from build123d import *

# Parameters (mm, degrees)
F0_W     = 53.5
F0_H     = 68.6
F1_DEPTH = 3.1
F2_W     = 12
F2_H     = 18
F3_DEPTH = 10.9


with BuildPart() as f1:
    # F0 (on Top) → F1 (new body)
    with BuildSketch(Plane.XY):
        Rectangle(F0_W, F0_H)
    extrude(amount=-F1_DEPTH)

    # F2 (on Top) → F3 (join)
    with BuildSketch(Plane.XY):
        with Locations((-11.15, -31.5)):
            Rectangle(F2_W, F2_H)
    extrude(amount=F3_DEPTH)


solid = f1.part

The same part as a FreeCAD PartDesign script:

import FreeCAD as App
import Part
import Sketcher
Q = App.Units.Quantity


def add_polygon(sketch, points):
    """Adds a closed chain of lines whose ends are joined by coincident constraints."""
    first, n = sketch.GeometryCount, len(points)
    for a, b in zip(points, points[1:] + points[:1]):
        sketch.addGeometry(Part.LineSegment(App.Vector(*a, 0), App.Vector(*b, 0)), False)
    for i in range(n):
        sketch.addConstraint(Sketcher.Constraint("Coincident", first + i, 2, first + (i + 1) % n, 1))

doc = App.newDocument("Part")
params = doc.addObject("Spreadsheet::Sheet", "Params")
for row, (alias, value) in enumerate([
    ("sketch1_width", "53.5 mm"),
    ("sketch1_height", "68.6 mm"),
    ("pad1_length", "3.1 mm"),
    ("sketch2_width", "12 mm"),
    ("sketch2_height", "18 mm"),
    ("pad2_length", "10.9 mm"),
], start=1):
    params.set(f"A{row}", alias)
    params.set(f"B{row}", "=" + value)
    params.setAlias(f"B{row}", alias)

body = doc.addObject("PartDesign::Body", "Body")

# Sketch on XY plane
sketch1 = body.newObject("Sketcher::SketchObject", "Sketch")
sketch1.AttachmentSupport = (doc.getObject("XY_Plane"), [""])
sketch1.MapMode = "FlatFace"
add_polygon(sketch1, [(-27, 34), (-27, -34), (27, -34), (27, 34)])  # lines 0-3
sketch1.addConstraint(Sketcher.Constraint("Vertical", 0))
sketch1.addConstraint(Sketcher.Constraint("Horizontal", 1))
sketch1.addConstraint(Sketcher.Constraint("Vertical", 2))
sketch1.addConstraint(Sketcher.Constraint("Horizontal", 3))
sketch1.addConstraint(Sketcher.Constraint("Symmetric", 0, 2, 2, 2, -1, 1))
sketch1.addConstraint(Sketcher.Constraint("DistanceX", 1, 1, 1, 2, Q("53.5 mm")))
sketch1.addConstraint(Sketcher.Constraint("DistanceY", 0, 2, 0, 1, Q("68.6 mm")))
sketch1.setExpression("Constraints[9]", "Params.sketch1_width")
sketch1.setExpression("Constraints[10]", "Params.sketch1_height")
pad1 = body.newObject("PartDesign::Pad", "Pad")
pad1.Profile = sketch1
pad1.setExpression("Length", "Params.pad1_length")
pad1.Reversed = True

# Sketch on XY plane
sketch2 = body.newObject("Sketcher::SketchObject", "Sketch001")
sketch2.AttachmentSupport = (doc.getObject("XY_Plane"), [""])
sketch2.MapMode = "FlatFace"
add_polygon(sketch2, [(-17, -22), (-17, -40), (-5, -40), (-5, -22)])  # lines 0-3
sketch2.addConstraint(Sketcher.Constraint("Vertical", 0))
sketch2.addConstraint(Sketcher.Constraint("Horizontal", 1))
sketch2.addConstraint(Sketcher.Constraint("Vertical", 2))
sketch2.addConstraint(Sketcher.Constraint("Horizontal", 3))
sketch2.addConstraint(Sketcher.Constraint("DistanceX", 1, 1, 1, 2, Q("12 mm")))
sketch2.addConstraint(Sketcher.Constraint("DistanceY", 0, 2, 0, 1, Q("18 mm")))
sketch2.addConstraint(Sketcher.Constraint("DistanceY", 0, 2, -1, 1, Q("40.5 mm")))
sketch2.addConstraint(Sketcher.Constraint("DistanceX", 0, 2, -1, 1, Q("17.15 mm")))
sketch2.setExpression("Constraints[8]", "Params.sketch2_width")
sketch2.setExpression("Constraints[9]", "Params.sketch2_height")
pad2 = body.newObject("PartDesign::Pad", "Pad001")
pad2.Profile = sketch2
pad2.setExpression("Length", "Params.pad2_length")

doc.recompute()
